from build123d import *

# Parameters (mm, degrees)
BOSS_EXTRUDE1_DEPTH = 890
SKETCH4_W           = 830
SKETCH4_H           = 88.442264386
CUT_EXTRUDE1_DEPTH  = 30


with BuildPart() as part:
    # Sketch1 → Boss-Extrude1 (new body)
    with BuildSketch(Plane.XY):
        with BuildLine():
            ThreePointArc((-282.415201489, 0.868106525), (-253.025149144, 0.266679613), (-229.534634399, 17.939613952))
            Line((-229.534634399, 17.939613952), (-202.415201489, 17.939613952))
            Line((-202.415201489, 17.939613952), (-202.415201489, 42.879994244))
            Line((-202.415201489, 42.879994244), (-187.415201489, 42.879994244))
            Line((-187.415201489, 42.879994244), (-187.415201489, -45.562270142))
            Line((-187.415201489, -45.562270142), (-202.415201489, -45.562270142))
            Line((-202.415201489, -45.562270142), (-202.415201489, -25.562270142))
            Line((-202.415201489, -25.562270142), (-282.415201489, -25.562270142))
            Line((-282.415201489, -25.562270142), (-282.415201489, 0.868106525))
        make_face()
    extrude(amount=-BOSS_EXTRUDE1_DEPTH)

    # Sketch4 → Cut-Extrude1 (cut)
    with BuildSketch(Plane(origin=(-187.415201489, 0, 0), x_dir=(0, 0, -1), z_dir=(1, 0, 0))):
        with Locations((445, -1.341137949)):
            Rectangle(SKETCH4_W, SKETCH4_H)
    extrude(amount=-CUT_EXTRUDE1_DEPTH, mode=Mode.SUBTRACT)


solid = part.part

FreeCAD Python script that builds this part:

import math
import FreeCAD as App
import Part
import Sketcher

V = App.Vector


def add_polygon(sketch, points):
    """Adds a closed chain of lines whose ends are joined by coincident constraints."""
    first, n = sketch.GeometryCount, len(points)
    for a, b in zip(points, points[1:] + points[:1]):
        sketch.addGeometry(Part.LineSegment(App.Vector(*a, 0), App.Vector(*b, 0)), False)
    for i in range(n):
        sketch.addConstraint(Sketcher.Constraint("Coincident", first + i, 2, first + (i + 1) % n, 1))

doc = App.newDocument("Part")
body = doc.addObject("PartDesign::Body", "Body")

# Sketch on XY plane
sketch1 = body.newObject("Sketcher::SketchObject", "Sketch")
sketch1.AttachmentSupport = (doc.getObject("XY_Plane"), [""])
sketch1.MapMode = "FlatFace"
sketch1.addGeometry(Part.ArcOfCircle(Part.Circle(V(-267, 43, 0), V(0, 0, 1), 45), math.radians(-110), math.radians(-34)), False)
sketch1.addGeometry(Part.LineSegment(V(-282, 1, 0), V(-282, -26, 0)), False)
sketch1.addGeometry(Part.LineSegment(V(-282, -26, 0), V(-202, -26, 0)), False)
sketch1.addGeometry(Part.LineSegment(V(-202, -26, 0), V(-202, -46, 0)), False)
sketch1.addGeometry(Part.LineSegment(V(-202, -46, 0), V(-187, -46, 0)), False)
sketch1.addGeometry(Part.LineSegment(V(-187, -46, 0), V(-187, 43, 0)), False)
sketch1.addGeometry(Part.LineSegment(V(-187, 43, 0), V(-202, 43, 0)), False)
sketch1.addGeometry(Part.LineSegment(V(-202, 43, 0), V(-202, 18, 0)), False)
sketch1.addGeometry(Part.LineSegment(V(-202, 18, 0), V(-230, 18, 0)), False)
sketch1.addConstraint(Sketcher.Constraint("Coincident", 0, 1, 1, 1))
sketch1.addConstraint(Sketcher.Constraint("Coincident", 1, 2, 2, 1))
sketch1.addConstraint(Sketcher.Constraint("Coincident", 2, 2, 3, 1))
sketch1.addConstraint(Sketcher.Constraint("Coincident", 3, 2, 4, 1))
sketch1.addConstraint(Sketcher.Constraint("Coincident", 4, 2, 5, 1))
sketch1.addConstraint(Sketcher.Constraint("Coincident", 5, 2, 6, 1))
sketch1.addConstraint(Sketcher.Constraint("Coincident", 6, 2, 7, 1))
sketch1.addConstraint(Sketcher.Constraint("Coincident", 7, 2, 8, 1))
sketch1.addConstraint(Sketcher.Constraint("Coincident", 8, 2, 0, 2))
sketch1.addConstraint(Sketcher.Constraint("Vertical", 1))
sketch1.addConstraint(Sketcher.Constraint("Horizontal", 2))
sketch1.addConstraint(Sketcher.Constraint("Vertical", 3))
sketch1.addConstraint(Sketcher.Constraint("Horizontal", 4))
sketch1.addConstraint(Sketcher.Constraint("Vertical", 5))
sketch1.addConstraint(Sketcher.Constraint("Horizontal", 6))
sketch1.addConstraint(Sketcher.Constraint("Vertical", 7))
sketch1.addConstraint(Sketcher.Constraint("Horizontal", 8))
sketch1.addConstraint(Sketcher.Constraint("Vertical", 3, 2, 6, 2))
sketch1.addConstraint(Sketcher.Constraint("Radius", 0, 45.0))
sketch1.addConstraint(Sketcher.Constraint("DistanceX", 2, 1, 2, 2, 80.0))
sketch1.addConstraint(Sketcher.Constraint("DistanceX", 4, 1, 4, 2, 15.0))
sketch1.addConstraint(Sketcher.Constraint("DistanceY", 3, 2, 3, 1, 20.0))
sketch1.addConstraint(Sketcher.Constraint("DistanceX", 0, 3, -1, 1, 266.85))
sketch1.addConstraint(Sketcher.Constraint("DistanceY", 7, 2, 7, 1, 24.94038))
sketch1.addConstraint(Sketcher.Constraint("DistanceX", 0, 1, -1, 1, 282.415201))
sketch1.addConstraint(Sketcher.Constraint("DistanceY", 1, 2, 0, 3, 68.652699))
sketch1.addConstraint(Sketcher.Constraint("DistanceX", 8, 2, 8, 1, 27.119433))
sketch1.addConstraint(Sketcher.Constraint("DistanceY", -1, 1, 0, 3, 43.090429))
pad1 = body.newObject("PartDesign::Pad", "Pad")
pad1.Profile = sketch1
pad1.Length = 890
pad1.Reversed = True

# Sketch on YZ plane
sketch2 = body.newObject("Sketcher::SketchObject", "Sketch001")
sketch2.AttachmentSupport = (doc.getObject("YZ_Plane"), [""])
sketch2.MapMode = "FlatFace"
sketch2.AttachmentOffset = App.Placement(V(0, 0, -187.415201), App.Rotation())
add_polygon(sketch2, [(43, -30), (-46, -30), (-46, -860), (43, -860)])  # lines 0-3
sketch2.addConstraint(Sketcher.Constraint("Horizontal", 0))
sketch2.addConstraint(Sketcher.Constraint("Vertical", 1))
sketch2.addConstraint(Sketcher.Constraint("Horizontal", 2))
sketch2.addConstraint(Sketcher.Constraint("Vertical", 3))
sketch2.addConstraint(Sketcher.Constraint("DistanceY", 1, 2, 1, 1, 830.0))
sketch2.addConstraint(Sketcher.Constraint("DistanceY", 0, 2, -1, 1, 30.0))
sketch2.addConstraint(Sketcher.Constraint("DistanceX", 0, 2, 0, 1, 88.442264))
sketch2.addConstraint(Sketcher.Constraint("DistanceX", 0, 2, -1, 1, 45.56227))
pocket1 = body.newObject("PartDesign::Pocket", "Pocket")
pocket1.Profile = sketch2
pocket1.Length = 30

doc.recompute()
